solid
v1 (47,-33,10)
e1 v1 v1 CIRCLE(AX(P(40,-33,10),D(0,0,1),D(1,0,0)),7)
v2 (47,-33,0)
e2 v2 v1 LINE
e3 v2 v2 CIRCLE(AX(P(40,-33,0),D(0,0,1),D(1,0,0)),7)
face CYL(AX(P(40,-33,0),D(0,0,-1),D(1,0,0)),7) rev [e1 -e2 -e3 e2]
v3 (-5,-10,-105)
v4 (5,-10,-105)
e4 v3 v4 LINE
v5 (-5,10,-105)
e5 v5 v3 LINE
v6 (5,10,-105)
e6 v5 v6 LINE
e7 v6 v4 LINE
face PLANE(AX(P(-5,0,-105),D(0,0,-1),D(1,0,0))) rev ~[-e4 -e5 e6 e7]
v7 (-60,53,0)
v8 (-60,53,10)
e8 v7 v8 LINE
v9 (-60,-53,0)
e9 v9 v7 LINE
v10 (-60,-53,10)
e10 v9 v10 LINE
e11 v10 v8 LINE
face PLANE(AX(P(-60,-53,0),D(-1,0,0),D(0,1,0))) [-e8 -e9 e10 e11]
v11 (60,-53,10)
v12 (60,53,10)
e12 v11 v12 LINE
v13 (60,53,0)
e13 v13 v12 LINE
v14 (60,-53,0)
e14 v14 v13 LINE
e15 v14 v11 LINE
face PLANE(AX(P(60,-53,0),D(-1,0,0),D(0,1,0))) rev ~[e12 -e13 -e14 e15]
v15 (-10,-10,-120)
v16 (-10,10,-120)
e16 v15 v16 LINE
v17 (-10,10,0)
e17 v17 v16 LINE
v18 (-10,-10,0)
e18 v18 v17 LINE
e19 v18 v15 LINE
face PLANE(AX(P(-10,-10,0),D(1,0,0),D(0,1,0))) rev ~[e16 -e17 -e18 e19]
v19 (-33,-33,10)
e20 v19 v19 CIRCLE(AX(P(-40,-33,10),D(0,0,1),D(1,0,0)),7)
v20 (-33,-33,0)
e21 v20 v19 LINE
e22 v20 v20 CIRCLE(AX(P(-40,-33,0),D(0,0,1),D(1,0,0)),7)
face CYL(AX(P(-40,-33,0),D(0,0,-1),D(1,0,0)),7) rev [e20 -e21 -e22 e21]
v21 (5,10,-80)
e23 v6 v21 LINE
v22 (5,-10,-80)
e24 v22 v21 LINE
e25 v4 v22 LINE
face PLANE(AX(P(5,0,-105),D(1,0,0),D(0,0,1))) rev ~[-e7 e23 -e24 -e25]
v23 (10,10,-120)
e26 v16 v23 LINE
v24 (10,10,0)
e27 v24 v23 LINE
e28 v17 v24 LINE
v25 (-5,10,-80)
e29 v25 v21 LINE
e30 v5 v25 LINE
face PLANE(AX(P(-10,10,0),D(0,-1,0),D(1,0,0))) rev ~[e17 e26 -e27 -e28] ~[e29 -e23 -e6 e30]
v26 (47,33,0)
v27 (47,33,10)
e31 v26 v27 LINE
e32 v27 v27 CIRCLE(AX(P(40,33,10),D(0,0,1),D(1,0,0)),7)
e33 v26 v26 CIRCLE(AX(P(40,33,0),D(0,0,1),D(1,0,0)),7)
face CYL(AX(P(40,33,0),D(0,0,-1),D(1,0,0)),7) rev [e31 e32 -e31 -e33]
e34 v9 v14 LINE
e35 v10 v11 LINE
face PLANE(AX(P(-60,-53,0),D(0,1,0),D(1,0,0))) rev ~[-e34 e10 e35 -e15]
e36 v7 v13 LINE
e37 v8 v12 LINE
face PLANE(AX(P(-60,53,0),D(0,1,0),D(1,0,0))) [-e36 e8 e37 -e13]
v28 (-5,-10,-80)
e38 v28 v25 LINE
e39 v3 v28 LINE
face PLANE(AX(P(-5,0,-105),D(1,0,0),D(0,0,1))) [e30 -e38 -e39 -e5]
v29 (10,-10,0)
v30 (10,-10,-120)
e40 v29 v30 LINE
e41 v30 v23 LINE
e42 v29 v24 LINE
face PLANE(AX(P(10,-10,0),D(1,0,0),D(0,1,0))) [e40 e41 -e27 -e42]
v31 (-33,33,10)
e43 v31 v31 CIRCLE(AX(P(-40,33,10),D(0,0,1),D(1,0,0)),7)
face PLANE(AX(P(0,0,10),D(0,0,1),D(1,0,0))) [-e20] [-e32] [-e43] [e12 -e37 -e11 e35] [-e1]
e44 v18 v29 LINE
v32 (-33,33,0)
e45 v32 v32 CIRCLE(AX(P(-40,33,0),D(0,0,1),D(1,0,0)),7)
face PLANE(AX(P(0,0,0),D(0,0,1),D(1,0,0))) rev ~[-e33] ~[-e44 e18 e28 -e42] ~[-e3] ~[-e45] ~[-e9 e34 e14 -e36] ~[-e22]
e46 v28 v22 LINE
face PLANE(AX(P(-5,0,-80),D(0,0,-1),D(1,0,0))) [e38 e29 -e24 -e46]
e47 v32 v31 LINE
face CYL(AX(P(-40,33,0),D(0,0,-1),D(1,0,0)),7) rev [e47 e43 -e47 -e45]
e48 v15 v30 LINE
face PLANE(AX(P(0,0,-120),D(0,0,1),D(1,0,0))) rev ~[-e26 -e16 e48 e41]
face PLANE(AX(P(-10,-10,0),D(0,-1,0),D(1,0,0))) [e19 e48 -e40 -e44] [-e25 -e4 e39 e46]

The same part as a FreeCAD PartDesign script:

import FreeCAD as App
import Part
import Sketcher

V = App.Vector

doc = App.newDocument("Part")
body = doc.addObject("PartDesign::Body", "Body")

# Sketch on XY plane
sketch1 = body.newObject("Sketcher::SketchObject", "Sketch")
sketch1.AttachmentSupport = (doc.getObject("XY_Plane"), [""])
sketch1.MapMode = "FlatFace"
sketch1.addGeometry([
    Part.LineSegment(V(-10, 10, 0), V(-10, -10, 0)),
    Part.LineSegment(V(-10, -10, 0), V(10, -10, 0)),
    Part.LineSegment(V(10, -10, 0), V(10, 10, 0)),
    Part.LineSegment(V(10, 10, 0), V(-10, 10, 0)),
], False)
sketch1.addConstraint([
    Sketcher.Constraint("Coincident", 0, 2, 1, 1),
    Sketcher.Constraint("Coincident", 1, 2, 2, 1),
    Sketcher.Constraint("Coincident", 2, 2, 3, 1),
    Sketcher.Constraint("Coincident", 3, 2, 0, 1),
    Sketcher.Constraint("Vertical", 0),
    Sketcher.Constraint("Horizontal", 1),
    Sketcher.Constraint("Vertical", 2),
    Sketcher.Constraint("Horizontal", 3),
    Sketcher.Constraint("Symmetric", 0, 2, 2, 2, -1, 1),
    Sketcher.Constraint("Equal", 3, 0),
    Sketcher.Constraint("DistanceX", 1, 1, 1, 2, 20.0),
])
pad1 = body.newObject("PartDesign::Pad", "Pad")
pad1.Profile = sketch1
pad1.Length = 120
pad1.Reversed = True

# Sketch on XY plane
sketch2 = body.newObject("Sketcher::SketchObject", "Sketch001")
sketch2.AttachmentSupport = (doc.getObject("XY_Plane"), [""])
sketch2.MapMode = "FlatFace"
sketch2.addGeometry([
    Part.LineSegment(V(-60, 53, 0), V(-60, -53, 0)),  # 0
    Part.LineSegment(V(-60, -53, 0), V(60, -53, 0)),  # 1
    Part.LineSegment(V(60, -53, 0), V(60, 53, 0)),  # 2
    Part.LineSegment(V(60, 53, 0), V(-60, 53, 0)),  # 3
    Part.Circle(V(-40, -33, 0), V(0, 0, 1), 7),  # 4
    Part.Circle(V(40, -33, 0), V(0, 0, 1), 7),  # 5
    Part.Circle(V(-40, 33, 0), V(0, 0, 1), 7),  # 6
    Part.Circle(V(40, 33, 0), V(0, 0, 1), 7),  # 7
], False)
sketch2.addConstraint([
    Sketcher.Constraint("Coincident", 0, 2, 1, 1),
    Sketcher.Constraint("Coincident", 1, 2, 2, 1),
    Sketcher.Constraint("Coincident", 2, 2, 3, 1),
    Sketcher.Constraint("Coincident", 3, 2, 0, 1),
    Sketcher.Constraint("Vertical", 0),
    Sketcher.Constraint("Horizontal", 1),
    Sketcher.Constraint("Vertical", 2),
    Sketcher.Constraint("Horizontal", 3),
    Sketcher.Constraint("Equal", 4, 5),
    Sketcher.Constraint("Equal", 5, 6),
    Sketcher.Constraint("Equal", 6, 7),
    Sketcher.Constraint("Symmetric", 5, 3, 6, 3, -1, 1),
    Sketcher.Constraint("Symmetric", 4, 3, 7, 3, -1, 1),
    Sketcher.Constraint("Symmetric", 0, 2, 2, 2, -1, 1),
    Sketcher.Constraint("Symmetric", 4, 3, 5, 3, -2),
    Sketcher.Constraint("Diameter", 4, 14.0),
    Sketcher.Constraint("DistanceX", 1, 1, 1, 2, 120.0),
    Sketcher.Constraint("DistanceY", 0, 2, 0, 1, 106.0),
    Sketcher.Constraint("DistanceX", 4, 3, -1, 1, 40.0),
    Sketcher.Constraint("DistanceY", 4, 3, -1, 1, 33.0),
])
pad2 = body.newObject("PartDesign::Pad", "Pad001")
pad2.Profile = sketch2
pad2.Length = 10

# Sketch on XZ plane
sketch3 = body.newObject("Sketcher::SketchObject", "Sketch002")
sketch3.AttachmentSupport = (doc.getObject("XZ_Plane"), [""])
sketch3.MapMode = "FlatFace"
sketch3.addGeometry([
    Part.LineSegment(V(-5, -80, 0), V(-5, -105, 0)),
    Part.LineSegment(V(-5, -105, 0), V(5, -105, 0)),
    Part.LineSegment(V(5, -105, 0), V(5, -80, 0)),
    Part.LineSegment(V(5, -80, 0), V(-5, -80, 0)),
], False)
sketch3.addConstraint([
    Sketcher.Constraint("Coincident", 0, 2, 1, 1),
    Sketcher.Constraint("Coincident", 1, 2, 2, 1),
    Sketcher.Constraint("Coincident", 2, 2, 3, 1),
    Sketcher.Constraint("Coincident", 3, 2, 0, 1),
    Sketcher.Constraint("Vertical", 0),
    Sketcher.Constraint("Horizontal", 1),
    Sketcher.Constraint("Vertical", 2),
    Sketcher.Constraint("Horizontal", 3),
    Sketcher.Constraint("DistanceX", 1, 1, 1, 2, 10.0),
    Sketcher.Constraint("DistanceY", 0, 2, 0, 1, 25.0),
    Sketcher.Constraint("DistanceX", 0, 2, -1, 1, 5.0),
    Sketcher.Constraint("DistanceY", 0, 2, -1, 1, 105.0),
])
pocket1 = body.newObject("PartDesign::Pocket", "Pocket")
pocket1.Profile = sketch3
pocket1.Length = 25
pocket1.Midplane = True

doc.recompute()
